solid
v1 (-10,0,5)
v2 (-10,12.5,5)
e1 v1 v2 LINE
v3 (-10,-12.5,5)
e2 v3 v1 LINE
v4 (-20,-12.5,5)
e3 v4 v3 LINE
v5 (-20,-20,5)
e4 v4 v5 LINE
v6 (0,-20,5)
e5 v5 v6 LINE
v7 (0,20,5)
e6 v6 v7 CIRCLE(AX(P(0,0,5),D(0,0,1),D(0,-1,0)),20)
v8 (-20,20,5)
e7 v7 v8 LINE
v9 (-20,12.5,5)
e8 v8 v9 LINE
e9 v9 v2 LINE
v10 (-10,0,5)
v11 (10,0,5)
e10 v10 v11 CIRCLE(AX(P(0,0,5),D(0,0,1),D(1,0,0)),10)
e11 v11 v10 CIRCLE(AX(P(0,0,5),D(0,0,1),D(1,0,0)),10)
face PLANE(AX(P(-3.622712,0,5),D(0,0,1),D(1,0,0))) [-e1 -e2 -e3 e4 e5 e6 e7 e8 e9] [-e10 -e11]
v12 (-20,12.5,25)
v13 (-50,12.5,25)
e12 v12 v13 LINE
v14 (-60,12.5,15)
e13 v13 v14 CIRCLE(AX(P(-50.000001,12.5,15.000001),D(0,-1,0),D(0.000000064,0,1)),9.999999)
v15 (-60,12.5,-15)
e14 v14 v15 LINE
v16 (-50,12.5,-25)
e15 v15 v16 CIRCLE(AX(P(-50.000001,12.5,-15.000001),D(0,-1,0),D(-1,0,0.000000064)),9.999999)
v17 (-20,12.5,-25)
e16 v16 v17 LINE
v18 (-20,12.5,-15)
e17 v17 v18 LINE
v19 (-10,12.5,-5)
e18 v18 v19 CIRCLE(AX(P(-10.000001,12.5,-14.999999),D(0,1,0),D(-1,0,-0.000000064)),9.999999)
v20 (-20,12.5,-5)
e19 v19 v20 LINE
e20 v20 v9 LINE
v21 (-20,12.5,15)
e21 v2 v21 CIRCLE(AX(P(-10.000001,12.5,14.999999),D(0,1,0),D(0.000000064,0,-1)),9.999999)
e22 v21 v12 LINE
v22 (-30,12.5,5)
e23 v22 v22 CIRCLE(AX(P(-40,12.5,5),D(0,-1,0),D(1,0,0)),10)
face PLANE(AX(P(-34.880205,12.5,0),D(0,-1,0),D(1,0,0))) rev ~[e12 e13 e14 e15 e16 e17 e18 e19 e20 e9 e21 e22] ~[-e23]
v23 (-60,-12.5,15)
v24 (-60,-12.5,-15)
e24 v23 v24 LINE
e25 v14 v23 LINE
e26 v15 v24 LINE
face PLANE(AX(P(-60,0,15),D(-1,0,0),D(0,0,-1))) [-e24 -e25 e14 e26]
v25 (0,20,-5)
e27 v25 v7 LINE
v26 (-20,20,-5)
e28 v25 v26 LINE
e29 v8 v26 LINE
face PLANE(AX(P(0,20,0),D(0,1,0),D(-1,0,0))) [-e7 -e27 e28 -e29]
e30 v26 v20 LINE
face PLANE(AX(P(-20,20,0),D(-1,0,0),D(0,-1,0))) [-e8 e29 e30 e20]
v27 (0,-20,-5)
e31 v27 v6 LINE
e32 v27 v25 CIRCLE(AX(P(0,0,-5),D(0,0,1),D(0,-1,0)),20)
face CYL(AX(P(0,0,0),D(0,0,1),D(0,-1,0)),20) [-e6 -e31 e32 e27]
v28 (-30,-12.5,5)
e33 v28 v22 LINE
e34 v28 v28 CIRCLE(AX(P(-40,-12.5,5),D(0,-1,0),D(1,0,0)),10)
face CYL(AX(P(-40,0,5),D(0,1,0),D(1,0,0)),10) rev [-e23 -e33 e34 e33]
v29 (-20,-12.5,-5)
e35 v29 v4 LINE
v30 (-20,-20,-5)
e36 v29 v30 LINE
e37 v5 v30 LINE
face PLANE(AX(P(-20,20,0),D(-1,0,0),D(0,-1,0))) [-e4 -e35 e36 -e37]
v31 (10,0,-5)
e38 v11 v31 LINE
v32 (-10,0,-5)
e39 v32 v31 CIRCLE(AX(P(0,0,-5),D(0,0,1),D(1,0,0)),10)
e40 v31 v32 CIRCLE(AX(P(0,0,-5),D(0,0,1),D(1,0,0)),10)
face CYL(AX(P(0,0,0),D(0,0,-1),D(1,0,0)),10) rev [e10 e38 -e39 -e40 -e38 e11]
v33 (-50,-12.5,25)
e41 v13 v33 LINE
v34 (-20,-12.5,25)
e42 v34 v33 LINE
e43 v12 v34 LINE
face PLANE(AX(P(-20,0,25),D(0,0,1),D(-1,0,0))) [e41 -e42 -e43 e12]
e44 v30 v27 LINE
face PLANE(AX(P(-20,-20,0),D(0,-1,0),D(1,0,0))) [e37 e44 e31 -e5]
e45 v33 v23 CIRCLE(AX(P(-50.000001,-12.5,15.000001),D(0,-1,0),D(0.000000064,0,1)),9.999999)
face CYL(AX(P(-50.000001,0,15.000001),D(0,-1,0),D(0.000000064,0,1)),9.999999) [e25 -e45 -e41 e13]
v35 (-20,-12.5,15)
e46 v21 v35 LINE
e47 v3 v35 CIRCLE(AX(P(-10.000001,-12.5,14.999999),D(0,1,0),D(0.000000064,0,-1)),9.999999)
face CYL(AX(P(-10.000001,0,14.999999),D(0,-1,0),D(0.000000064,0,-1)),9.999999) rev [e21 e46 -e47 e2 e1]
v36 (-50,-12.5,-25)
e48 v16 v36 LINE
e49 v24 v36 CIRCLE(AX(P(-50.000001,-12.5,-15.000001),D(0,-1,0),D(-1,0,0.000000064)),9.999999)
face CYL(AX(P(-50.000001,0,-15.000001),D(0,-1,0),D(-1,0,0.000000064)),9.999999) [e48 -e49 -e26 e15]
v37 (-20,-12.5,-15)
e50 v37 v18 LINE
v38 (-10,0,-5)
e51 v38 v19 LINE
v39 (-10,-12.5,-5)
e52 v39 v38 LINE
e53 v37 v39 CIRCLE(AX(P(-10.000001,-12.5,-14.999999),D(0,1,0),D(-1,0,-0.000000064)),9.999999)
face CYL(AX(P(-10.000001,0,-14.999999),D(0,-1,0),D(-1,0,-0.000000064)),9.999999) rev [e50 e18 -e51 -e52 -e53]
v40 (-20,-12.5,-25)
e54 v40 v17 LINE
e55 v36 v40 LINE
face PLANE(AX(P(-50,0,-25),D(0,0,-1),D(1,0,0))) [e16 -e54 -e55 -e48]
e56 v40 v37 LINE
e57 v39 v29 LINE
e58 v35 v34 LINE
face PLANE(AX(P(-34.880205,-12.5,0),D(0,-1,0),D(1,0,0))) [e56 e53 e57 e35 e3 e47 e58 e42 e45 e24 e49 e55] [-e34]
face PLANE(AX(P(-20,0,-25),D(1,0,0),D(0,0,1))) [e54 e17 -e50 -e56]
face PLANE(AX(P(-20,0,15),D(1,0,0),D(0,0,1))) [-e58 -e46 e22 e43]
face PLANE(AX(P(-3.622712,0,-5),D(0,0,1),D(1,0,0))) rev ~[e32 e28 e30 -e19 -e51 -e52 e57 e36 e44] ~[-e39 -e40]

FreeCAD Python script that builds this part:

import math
import FreeCAD as App
import Part
import Sketcher

V = App.Vector
Q = App.Units.Quantity

doc = App.newDocument("Part")
body = doc.addObject("PartDesign::Body", "Body")

sketch1 = doc.addObject("Sketcher::SketchObject", "Sketch")
body.addObject(sketch1)
sketch1.AttachmentSupport = (doc.XY_Plane, [""])
sketch1.MapMode = "FlatFace"
sketch1.addGeometry(Part.LineSegment(V(-20, -20, 0), V(0, -20, 0)), False)
sketch1.addGeometry(Part.ArcOfCircle(Part.Circle(V(0, 0, 0), V(0, 0, 1), 20), math.radians(-90), math.radians(90)), False)
sketch1.addGeometry(Part.LineSegment(V(0, 20, 0), V(-20, 20, 0)), False)
sketch1.addGeometry(Part.LineSegment(V(-20, 20, 0), V(-20, -20, 0)), False)
sketch1.addGeometry(Part.Circle(V(0, 0, 0), V(0, 0, 1), 10), False)
sketch1.addConstraint(Sketcher.Constraint("Tangent", 0, 2, 1, 1))
sketch1.addConstraint(Sketcher.Constraint("Tangent", 1, 2, 2, 1))
sketch1.addConstraint(Sketcher.Constraint("Coincident", 2, 2, 3, 1))
sketch1.addConstraint(Sketcher.Constraint("Coincident", 3, 2, 0, 1))
sketch1.addConstraint(Sketcher.Constraint("Horizontal", 0))
sketch1.addConstraint(Sketcher.Constraint("Horizontal", 2))
sketch1.addConstraint(Sketcher.Constraint("Vertical", 3))
sketch1.addConstraint(Sketcher.Constraint("Coincident", 1, 3, -1, 1))
sketch1.addConstraint(Sketcher.Constraint("Coincident", 4, 3, -1, 1))
sketch1.addConstraint(Sketcher.Constraint("Diameter", 4, Q("20 mm")))
sketch1.addConstraint(Sketcher.Constraint("Radius", 1, Q("20 mm")))
sketch1.addConstraint(Sketcher.Constraint("DistanceX", 0, 1, 0, 2, Q("20 mm")))
pad1 = doc.addObject("PartDesign::Pad", "Pad")
body.addObject(pad1)
pad1.Profile = sketch1
pad1.Length = 10
pad1.Midplane = True

sketch2 = doc.addObject("Sketcher::SketchObject", "Sketch001")
body.addObject(sketch2)
sketch2.AttachmentSupport = (doc.XZ_Plane, [""])
sketch2.MapMode = "FlatFace"
sketch2.addGeometry(Part.ArcOfCircle(Part.Circle(V(-10.000001, 14.999999, 0), V(0, 0, 1), 9.999999), math.radians(179.999996), math.radians(270.000004)), False)
sketch2.addGeometry(Part.LineSegment(V(-20, 15, 0), V(-20, 25, 0)), False)
sketch2.addGeometry(Part.LineSegment(V(-20, 25, 0), V(-50, 25, 0)), False)
sketch2.addGeometry(Part.ArcOfCircle(Part.Circle(V(-50.000001, 15.000001, 0), V(0, 0, 1), 9.999999), math.radians(89.999996), math.radians(180.000004)), False)
sketch2.addGeometry(Part.LineSegment(V(-60, 15, 0), V(-60, -15, 0)), False)
sketch2.addGeometry(Part.ArcOfCircle(Part.Circle(V(-50.000001, -15.000001, 0), V(0, 0, 1), 9.999999), math.radians(179.999996), math.radians(270.000004)), False)
sketch2.addGeometry(Part.LineSegment(V(-50, -25, 0), V(-20, -25, 0)), False)
sketch2.addGeometry(Part.LineSegment(V(-20, -25, 0), V(-20, -15, 0)), False)
sketch2.addGeometry(Part.ArcOfCircle(Part.Circle(V(-10.000001, -14.999999, 0), V(0, 0, 1), 9.999999), math.radians(89.999996), math.radians(180.000004)), False)
sketch2.addGeometry(Part.LineSegment(V(-10, -5, 0), V(-20, -5, 0)), False)
sketch2.addGeometry(Part.LineSegment(V(-20, -5, 0), V(-20, 5, 0)), False)
sketch2.addGeometry(Part.LineSegment(V(-20, 5, 0), V(-10, 5, 0)), False)
sketch2.addGeometry(Part.Circle(V(-40, 5, 0), V(0, 0, 1), 10), False)
sketch2.addConstraint(Sketcher.Constraint("Tangent", 0, 1, 1, 1))
sketch2.addConstraint(Sketcher.Constraint("Coincident", 1, 2, 2, 1))
sketch2.addConstraint(Sketcher.Constraint("Tangent", 2, 2, 3, 1))
sketch2.addConstraint(Sketcher.Constraint("Tangent", 3, 2, 4, 1))
sketch2.addConstraint(Sketcher.Constraint("Tangent", 4, 2, 5, 1))
sketch2.addConstraint(Sketcher.Constraint("Tangent", 5, 2, 6, 1))
sketch2.addConstraint(Sketcher.Constraint("Coincident", 6, 2, 7, 1))
sketch2.addConstraint(Sketcher.Constraint("Tangent", 7, 2, 8, 2))
sketch2.addConstraint(Sketcher.Constraint("Tangent", 8, 1, 9, 1))
sketch2.addConstraint(Sketcher.Constraint("Coincident", 9, 2, 10, 1))
sketch2.addConstraint(Sketcher.Constraint("Coincident", 10, 2, 11, 1))
sketch2.addConstraint(Sketcher.Constraint("Tangent", 11, 2, 0, 2))
sketch2.addConstraint(Sketcher.Constraint("Vertical", 1))
sketch2.addConstraint(Sketcher.Constraint("Horizontal", 2))
sketch2.addConstraint(Sketcher.Constraint("Vertical", 4))
sketch2.addConstraint(Sketcher.Constraint("Horizontal", 6))
sketch2.addConstraint(Sketcher.Constraint("Vertical", 7))
sketch2.addConstraint(Sketcher.Constraint("Horizontal", 9))
sketch2.addConstraint(Sketcher.Constraint("Vertical", 10))
sketch2.addConstraint(Sketcher.Constraint("Horizontal", 11))
sketch2.addConstraint(Sketcher.Constraint("Equal", 0, 3))
sketch2.addConstraint(Sketcher.Constraint("Equal", 3, 5))
sketch2.addConstraint(Sketcher.Constraint("Equal", 5, 8))
sketch2.addConstraint(Sketcher.Constraint("Equal", 8, 12))
sketch2.addConstraint(Sketcher.Constraint("Symmetric", 0, 3, 8, 3, -1))
sketch2.addConstraint(Sketcher.Constraint("Horizontal", 0, 3, 3, 3))
sketch2.addConstraint(Sketcher.Constraint("Horizontal", 5, 3, 8, 3))
sketch2.addConstraint(Sketcher.Constraint("Horizontal", 12, 3, 10, 2))
sketch2.addConstraint(Sketcher.Constraint("Vertical", 7, 2, 9, 2))
sketch2.addConstraint(Sketcher.Constraint("Equal", 6, 4))
sketch2.addConstraint(Sketcher.Constraint("Equal", 7, 10))
sketch2.addConstraint(Sketcher.Constraint("Diameter", 12, Q("20 mm")))
sketch2.addConstraint(Sketcher.Constraint("DistanceX", 0, 3, -1, 1, Q("10.000001 mm")))
sketch2.addConstraint(Sketcher.Constraint("DistanceX", 12, 3, -1, 1, Q("40 mm")))
pad2 = doc.addObject("PartDesign::Pad", "Pad001")
body.addObject(pad2)
pad2.Profile = sketch2
pad2.Length = 25
pad2.Midplane = True

doc.recompute()
